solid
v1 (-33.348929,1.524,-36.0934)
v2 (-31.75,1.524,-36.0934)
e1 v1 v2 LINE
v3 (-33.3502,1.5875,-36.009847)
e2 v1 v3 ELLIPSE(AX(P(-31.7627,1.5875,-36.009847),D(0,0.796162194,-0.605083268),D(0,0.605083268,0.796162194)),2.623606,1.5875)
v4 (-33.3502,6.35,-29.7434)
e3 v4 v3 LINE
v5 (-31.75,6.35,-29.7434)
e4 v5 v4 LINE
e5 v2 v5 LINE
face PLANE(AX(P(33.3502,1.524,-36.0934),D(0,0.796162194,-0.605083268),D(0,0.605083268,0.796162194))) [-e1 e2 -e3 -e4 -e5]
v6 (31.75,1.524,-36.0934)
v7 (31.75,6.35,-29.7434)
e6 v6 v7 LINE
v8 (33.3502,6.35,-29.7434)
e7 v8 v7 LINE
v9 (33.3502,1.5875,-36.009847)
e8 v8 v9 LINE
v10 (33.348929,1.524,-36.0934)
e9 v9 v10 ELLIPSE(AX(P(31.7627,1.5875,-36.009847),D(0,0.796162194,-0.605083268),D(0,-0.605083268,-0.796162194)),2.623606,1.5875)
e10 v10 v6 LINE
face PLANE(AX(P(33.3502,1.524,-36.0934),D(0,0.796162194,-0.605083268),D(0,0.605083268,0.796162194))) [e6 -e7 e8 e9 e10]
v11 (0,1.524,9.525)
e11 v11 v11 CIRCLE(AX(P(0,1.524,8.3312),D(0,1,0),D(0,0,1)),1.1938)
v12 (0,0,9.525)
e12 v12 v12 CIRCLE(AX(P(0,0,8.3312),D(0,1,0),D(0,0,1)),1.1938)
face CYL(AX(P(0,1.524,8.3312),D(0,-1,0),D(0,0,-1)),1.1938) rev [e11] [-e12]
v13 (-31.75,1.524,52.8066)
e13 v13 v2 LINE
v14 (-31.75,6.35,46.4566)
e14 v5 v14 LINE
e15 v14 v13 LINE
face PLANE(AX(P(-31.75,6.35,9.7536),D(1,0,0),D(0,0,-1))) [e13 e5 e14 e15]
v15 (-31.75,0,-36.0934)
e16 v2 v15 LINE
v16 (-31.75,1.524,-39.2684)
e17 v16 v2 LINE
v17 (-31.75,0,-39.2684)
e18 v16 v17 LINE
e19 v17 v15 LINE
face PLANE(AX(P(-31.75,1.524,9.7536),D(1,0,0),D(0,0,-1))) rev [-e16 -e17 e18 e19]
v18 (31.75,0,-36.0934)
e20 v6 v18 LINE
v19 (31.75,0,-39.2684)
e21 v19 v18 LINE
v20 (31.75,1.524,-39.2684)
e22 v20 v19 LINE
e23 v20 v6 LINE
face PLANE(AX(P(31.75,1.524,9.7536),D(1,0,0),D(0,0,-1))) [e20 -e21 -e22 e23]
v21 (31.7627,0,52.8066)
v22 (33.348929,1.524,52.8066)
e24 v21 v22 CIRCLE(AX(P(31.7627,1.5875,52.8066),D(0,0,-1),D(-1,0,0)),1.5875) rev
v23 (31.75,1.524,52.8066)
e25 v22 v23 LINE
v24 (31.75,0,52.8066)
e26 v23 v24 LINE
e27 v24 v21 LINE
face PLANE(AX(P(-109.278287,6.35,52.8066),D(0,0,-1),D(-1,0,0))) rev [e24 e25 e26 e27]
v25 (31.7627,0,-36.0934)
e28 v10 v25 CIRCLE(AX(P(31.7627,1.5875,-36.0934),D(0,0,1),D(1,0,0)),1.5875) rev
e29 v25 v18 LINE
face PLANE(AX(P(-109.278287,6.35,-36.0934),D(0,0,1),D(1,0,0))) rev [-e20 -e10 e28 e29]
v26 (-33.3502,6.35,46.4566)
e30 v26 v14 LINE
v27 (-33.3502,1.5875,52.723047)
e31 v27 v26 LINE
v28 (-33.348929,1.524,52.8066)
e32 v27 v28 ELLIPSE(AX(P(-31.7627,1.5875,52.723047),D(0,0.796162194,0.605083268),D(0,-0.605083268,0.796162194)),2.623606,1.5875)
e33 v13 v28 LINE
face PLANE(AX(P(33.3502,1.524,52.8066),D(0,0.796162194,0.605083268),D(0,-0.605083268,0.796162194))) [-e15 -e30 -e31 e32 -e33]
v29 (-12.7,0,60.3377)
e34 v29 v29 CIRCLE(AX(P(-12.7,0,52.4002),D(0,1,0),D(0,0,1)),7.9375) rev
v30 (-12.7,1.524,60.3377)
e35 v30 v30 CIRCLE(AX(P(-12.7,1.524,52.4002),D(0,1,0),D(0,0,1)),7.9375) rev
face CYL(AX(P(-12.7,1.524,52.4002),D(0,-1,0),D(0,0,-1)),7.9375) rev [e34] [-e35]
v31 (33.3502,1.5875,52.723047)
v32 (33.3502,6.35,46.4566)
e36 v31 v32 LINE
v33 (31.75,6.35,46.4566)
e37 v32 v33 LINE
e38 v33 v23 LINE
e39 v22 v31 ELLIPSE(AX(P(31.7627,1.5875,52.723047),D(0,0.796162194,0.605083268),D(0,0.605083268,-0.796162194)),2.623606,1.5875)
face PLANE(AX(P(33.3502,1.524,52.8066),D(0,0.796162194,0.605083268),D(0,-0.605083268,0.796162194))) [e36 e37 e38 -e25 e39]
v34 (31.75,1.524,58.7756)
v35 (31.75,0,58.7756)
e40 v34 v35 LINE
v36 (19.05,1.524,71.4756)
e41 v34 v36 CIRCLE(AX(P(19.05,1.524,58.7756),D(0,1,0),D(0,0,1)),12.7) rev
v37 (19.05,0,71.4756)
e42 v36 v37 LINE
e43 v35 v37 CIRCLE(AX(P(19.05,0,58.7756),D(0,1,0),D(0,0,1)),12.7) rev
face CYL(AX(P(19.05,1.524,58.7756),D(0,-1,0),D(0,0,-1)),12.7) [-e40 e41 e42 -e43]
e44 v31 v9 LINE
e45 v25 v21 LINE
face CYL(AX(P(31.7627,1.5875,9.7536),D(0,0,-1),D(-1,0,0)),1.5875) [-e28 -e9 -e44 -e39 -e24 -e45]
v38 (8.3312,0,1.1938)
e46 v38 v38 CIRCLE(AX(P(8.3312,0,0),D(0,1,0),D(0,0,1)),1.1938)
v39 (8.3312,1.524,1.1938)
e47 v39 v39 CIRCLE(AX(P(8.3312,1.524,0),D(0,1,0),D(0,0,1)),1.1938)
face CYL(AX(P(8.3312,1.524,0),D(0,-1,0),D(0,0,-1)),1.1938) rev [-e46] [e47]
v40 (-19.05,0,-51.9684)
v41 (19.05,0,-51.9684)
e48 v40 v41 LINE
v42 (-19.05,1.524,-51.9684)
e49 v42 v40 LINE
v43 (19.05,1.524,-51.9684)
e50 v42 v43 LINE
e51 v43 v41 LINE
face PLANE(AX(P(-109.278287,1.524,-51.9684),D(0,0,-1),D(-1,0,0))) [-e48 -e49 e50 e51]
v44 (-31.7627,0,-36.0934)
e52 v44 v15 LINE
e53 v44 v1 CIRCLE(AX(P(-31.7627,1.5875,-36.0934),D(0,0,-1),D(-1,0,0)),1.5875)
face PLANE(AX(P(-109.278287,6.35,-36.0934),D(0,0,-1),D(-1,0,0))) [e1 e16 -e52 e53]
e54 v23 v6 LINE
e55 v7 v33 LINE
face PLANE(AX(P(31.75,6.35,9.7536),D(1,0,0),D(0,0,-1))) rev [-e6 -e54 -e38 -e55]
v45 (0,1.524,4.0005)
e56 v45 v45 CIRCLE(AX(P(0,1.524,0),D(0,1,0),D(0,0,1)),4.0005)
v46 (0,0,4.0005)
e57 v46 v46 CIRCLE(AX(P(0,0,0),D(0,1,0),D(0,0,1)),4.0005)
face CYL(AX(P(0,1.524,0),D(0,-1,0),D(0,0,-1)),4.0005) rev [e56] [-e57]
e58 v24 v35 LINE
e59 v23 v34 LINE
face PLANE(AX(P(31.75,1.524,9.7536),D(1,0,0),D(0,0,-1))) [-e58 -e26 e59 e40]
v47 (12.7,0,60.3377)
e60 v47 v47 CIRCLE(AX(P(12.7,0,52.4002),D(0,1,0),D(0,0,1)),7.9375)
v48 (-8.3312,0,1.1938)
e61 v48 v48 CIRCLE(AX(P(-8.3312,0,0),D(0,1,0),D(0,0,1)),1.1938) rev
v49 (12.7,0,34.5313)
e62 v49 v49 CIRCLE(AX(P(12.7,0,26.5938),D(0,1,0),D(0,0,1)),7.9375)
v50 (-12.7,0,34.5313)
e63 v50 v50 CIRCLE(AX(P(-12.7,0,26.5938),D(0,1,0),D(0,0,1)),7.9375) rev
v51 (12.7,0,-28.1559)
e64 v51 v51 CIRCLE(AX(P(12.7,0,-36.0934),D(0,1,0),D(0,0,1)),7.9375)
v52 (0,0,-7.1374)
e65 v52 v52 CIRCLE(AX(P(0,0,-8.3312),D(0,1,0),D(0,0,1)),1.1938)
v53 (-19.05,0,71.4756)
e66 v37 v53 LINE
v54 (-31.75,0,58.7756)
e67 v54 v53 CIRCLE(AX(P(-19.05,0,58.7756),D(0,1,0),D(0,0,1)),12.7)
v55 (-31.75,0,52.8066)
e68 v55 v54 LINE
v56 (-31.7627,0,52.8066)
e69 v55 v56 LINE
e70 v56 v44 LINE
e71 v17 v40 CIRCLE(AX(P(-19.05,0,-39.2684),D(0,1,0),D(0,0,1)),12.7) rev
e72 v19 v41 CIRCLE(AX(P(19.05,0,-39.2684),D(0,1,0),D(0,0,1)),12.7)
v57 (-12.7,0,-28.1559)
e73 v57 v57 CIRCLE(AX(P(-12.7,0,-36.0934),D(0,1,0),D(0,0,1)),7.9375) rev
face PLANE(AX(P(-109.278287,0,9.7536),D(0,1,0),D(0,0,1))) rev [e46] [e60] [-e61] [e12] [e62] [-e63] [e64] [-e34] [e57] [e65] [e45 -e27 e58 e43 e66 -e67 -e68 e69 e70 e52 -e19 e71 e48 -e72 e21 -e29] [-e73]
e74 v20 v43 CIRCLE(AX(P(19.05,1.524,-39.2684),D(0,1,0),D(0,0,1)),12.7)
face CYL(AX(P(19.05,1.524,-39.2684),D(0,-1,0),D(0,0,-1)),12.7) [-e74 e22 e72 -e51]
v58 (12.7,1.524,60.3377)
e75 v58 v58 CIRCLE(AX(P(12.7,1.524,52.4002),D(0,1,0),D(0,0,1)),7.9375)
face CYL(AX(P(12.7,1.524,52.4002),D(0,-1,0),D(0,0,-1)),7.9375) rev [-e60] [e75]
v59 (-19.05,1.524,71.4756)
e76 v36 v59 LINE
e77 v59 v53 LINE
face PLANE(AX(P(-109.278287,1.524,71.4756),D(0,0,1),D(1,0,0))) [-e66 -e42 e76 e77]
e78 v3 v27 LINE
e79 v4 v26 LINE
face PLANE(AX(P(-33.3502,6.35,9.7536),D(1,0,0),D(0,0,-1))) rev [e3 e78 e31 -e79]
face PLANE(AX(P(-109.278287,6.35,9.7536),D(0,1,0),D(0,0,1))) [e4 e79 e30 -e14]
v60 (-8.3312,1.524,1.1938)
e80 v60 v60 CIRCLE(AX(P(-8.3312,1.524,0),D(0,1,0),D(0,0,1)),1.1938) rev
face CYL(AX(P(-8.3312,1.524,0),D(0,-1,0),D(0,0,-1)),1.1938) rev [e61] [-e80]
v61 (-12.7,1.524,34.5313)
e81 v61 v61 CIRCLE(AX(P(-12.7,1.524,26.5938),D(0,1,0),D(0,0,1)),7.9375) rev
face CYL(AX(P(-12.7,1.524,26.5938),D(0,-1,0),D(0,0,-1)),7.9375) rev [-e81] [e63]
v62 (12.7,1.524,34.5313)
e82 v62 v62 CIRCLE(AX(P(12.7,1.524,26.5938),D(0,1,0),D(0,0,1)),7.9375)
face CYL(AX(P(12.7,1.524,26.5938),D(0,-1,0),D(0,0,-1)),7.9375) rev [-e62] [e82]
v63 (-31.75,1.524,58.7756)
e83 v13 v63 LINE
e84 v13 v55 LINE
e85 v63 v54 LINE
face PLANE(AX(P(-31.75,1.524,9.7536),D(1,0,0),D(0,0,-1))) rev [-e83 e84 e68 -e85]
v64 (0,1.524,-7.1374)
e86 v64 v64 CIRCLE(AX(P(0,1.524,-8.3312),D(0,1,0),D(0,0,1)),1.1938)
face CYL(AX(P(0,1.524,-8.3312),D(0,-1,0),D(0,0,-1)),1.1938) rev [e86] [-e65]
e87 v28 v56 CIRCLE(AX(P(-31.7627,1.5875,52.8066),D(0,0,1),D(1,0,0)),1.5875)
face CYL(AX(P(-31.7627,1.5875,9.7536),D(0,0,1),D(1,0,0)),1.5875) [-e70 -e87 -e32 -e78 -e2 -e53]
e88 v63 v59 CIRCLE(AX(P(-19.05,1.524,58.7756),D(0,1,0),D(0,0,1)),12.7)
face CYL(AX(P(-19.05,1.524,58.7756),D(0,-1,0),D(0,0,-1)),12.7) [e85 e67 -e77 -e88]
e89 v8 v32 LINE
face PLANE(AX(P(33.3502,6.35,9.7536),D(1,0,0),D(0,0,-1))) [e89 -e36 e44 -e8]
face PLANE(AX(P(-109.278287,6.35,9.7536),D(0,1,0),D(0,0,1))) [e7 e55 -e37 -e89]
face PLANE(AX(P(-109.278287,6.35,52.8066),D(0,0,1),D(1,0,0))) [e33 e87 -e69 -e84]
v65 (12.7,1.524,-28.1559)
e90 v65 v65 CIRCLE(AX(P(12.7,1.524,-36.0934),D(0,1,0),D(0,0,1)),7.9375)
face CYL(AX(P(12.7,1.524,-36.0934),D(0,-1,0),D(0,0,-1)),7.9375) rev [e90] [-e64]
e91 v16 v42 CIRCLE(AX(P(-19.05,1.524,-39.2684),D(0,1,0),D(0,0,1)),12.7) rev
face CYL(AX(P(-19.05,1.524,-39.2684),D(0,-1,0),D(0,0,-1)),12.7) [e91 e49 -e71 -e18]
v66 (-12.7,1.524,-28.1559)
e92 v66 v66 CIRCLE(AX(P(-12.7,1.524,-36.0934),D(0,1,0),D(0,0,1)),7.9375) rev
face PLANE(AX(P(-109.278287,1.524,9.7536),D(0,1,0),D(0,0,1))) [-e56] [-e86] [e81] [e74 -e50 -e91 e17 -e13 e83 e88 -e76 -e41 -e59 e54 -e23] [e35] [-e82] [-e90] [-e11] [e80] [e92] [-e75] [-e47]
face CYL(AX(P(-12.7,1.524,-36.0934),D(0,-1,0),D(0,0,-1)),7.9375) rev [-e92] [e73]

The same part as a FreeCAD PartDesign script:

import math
import FreeCAD as App
import Part
import Sketcher
Q = App.Units.Quantity


def edges_at(feature, points):
    """Names of the edges that pass closest to the given points."""
    edges = feature.Shape.Edges
    near = lambda p: min(range(len(edges)), key=lambda i: edges[i].distToShape(Part.Vertex(*p))[0])
    return sorted({f"Edge{near(p) + 1}" for p in points})


def add_polygon(sketch, points):
    """Adds a closed chain of lines whose ends are joined by coincident constraints."""
    first, n = sketch.GeometryCount, len(points)
    for a, b in zip(points, points[1:] + points[:1]):
        sketch.addGeometry(Part.LineSegment(App.Vector(*a, 0), App.Vector(*b, 0)), False)
    for i in range(n):
        sketch.addConstraint(Sketcher.Constraint("Coincident", first + i, 2, first + (i + 1) % n, 1))

doc = App.newDocument("Part")
params = doc.addObject("Spreadsheet::Sheet", "Params")
for row, (alias, value) in enumerate([
    ("sketch1_radius", "0.5 in"),
    ("sketch1_diameter", "0.625 in"),
    ("sketch1_diameter2", "0.094 in"),
    ("sketch1_diameter3", "0.315 in"),
    ("sketch1_width", "1.5 in"),
    ("pad1_length", "0.06 in"),
    ("sketch2_height", "3.5 in"),
    ("sketch2_width", "0.063 in"),
    ("pad2_length", "0.25 in"),
    ("sketch3_width", "0.19 in"),
    ("sketch3_height", "0.25 in"),
    ("fillet_radius", "0.0625 in"),
], start=1):
    params.set(f"A{row}", alias)
    params.set(f"B{row}", "=" + value)
    params.setAlias(f"B{row}", alias)

body = doc.addObject("PartDesign::Body", "Body")

# Sketch on XZ plane
sketch1 = body.newObject("Sketcher::SketchObject", "Sketch")
sketch1.AttachmentSupport = (doc.getObject("XZ_Plane"), [""])
sketch1.MapMode = "FlatFace"
sketch1.addGeometry(Part.ArcOfCircle(Part.Circle(App.Vector(-19.1, 58.8, 0), App.Vector(0, 0, 1), 12.7), math.radians(90), math.radians(180)), False)
sketch1.addGeometry(Part.LineSegment(App.Vector(-19.1, 71.5, 0), App.Vector(19.1, 71.5, 0)), False)
sketch1.addGeometry(Part.ArcOfCircle(Part.Circle(App.Vector(19.1, 58.8, 0), App.Vector(0, 0, 1), 12.7), math.radians(0), math.radians(90)), False)
sketch1.addGeometry(Part.LineSegment(App.Vector(31.8, 58.8, 0), App.Vector(31.8, -39.3, 0)), False)
sketch1.addGeometry(Part.ArcOfCircle(Part.Circle(App.Vector(19.1, -39.3, 0), App.Vector(0, 0, 1), 12.7), math.radians(-90), math.radians(0)), False)
sketch1.addGeometry(Part.LineSegment(App.Vector(19.1, -52, 0), App.Vector(-19.1, -52, 0)), False)
sketch1.addGeometry(Part.ArcOfCircle(Part.Circle(App.Vector(-19.1, -39.3, 0), App.Vector(0, 0, 1), 12.7), math.radians(180), math.radians(270)), False)
sketch1.addGeometry(Part.LineSegment(App.Vector(-31.8, -39.3, 0), App.Vector(-31.8, 58.8, 0)), False)
sketch1.addGeometry(Part.Circle(App.Vector(-12.7, 52.4, 0), App.Vector(0, 0, 1), 7.9), False)
sketch1.addGeometry(Part.Circle(App.Vector(-12.7, 26.6, 0), App.Vector(0, 0, 1), 7.9), False)
sketch1.addGeometry(Part.Circle(App.Vector(12.7, 52.4, 0), App.Vector(0, 0, 1), 7.9), False)
sketch1.addGeometry(Part.Circle(App.Vector(0, 8.3, 0), App.Vector(0, 0, 1), 1.2), False)
sketch1.addGeometry(Part.Circle(App.Vector(12.7, 26.6, 0), App.Vector(0, 0, 1), 7.9), False)
sketch1.addGeometry(Part.Circle(App.Vector(-8.3, 0, 0), App.Vector(0, 0, 1), 1.2), False)
sketch1.addGeometry(Part.Circle(App.Vector(-12.7, -36.1, 0), App.Vector(0, 0, 1), 7.9), False)
sketch1.addGeometry(Part.Circle(App.Vector(0, 0, 0), App.Vector(0, 0, 1), 4), False)
sketch1.addGeometry(Part.Circle(App.Vector(8.3, 0, 0), App.Vector(0, 0, 1), 1.2), False)
sketch1.addGeometry(Part.Circle(App.Vector(0, -8.3, 0), App.Vector(0, 0, 1), 1.2), False)
sketch1.addGeometry(Part.Circle(App.Vector(12.7, -36.1, 0), App.Vector(0, 0, 1), 7.9), False)
sketch1.addConstraint(Sketcher.Constraint("Tangent", 0, 1, 1, 1))
sketch1.addConstraint(Sketcher.Constraint("Tangent", 1, 2, 2, 2))
sketch1.addConstraint(Sketcher.Constraint("Tangent", 2, 1, 3, 1))
sketch1.addConstraint(Sketcher.Constraint("Tangent", 3, 2, 4, 2))
sketch1.addConstraint(Sketcher.Constraint("Tangent", 4, 1, 5, 1))
sketch1.addConstraint(Sketcher.Constraint("Tangent", 5, 2, 6, 2))
sketch1.addConstraint(Sketcher.Constraint("Tangent", 6, 1, 7, 1))
sketch1.addConstraint(Sketcher.Constraint("Tangent", 7, 2, 0, 2))
sketch1.addConstraint(Sketcher.Constraint("Horizontal", 1))
sketch1.addConstraint(Sketcher.Constraint("Vertical", 3))
sketch1.addConstraint(Sketcher.Constraint("Horizontal", 5))
sketch1.addConstraint(Sketcher.Constraint("Vertical", 7))
sketch1.addConstraint(Sketcher.Constraint("Coincident", 15, 3, -1, 1))
sketch1.addConstraint(Sketcher.Constraint("Equal", 0, 2))
sketch1.addConstraint(Sketcher.Constraint("Equal", 2, 4))
sketch1.addConstraint(Sketcher.Constraint("Equal", 4, 6))
sketch1.addConstraint(Sketcher.Constraint("Equal", 8, 9))
sketch1.addConstraint(Sketcher.Constraint("Equal", 9, 10))
sketch1.addConstraint(Sketcher.Constraint("Equal", 10, 12))
sketch1.addConstraint(Sketcher.Constraint("Equal", 11, 13))
sketch1.addConstraint(Sketcher.Constraint("Equal", 12, 14))
sketch1.addConstraint(Sketcher.Constraint("Equal", 13, 16))
sketch1.addConstraint(Sketcher.Constraint("Equal", 16, 17))
sketch1.addConstraint(Sketcher.Constraint("Equal", 14, 18))
sketch1.addConstraint(Sketcher.Constraint("Symmetric", 13, 3, 16, 3, -1, 1))
sketch1.addConstraint(Sketcher.Constraint("Symmetric", 11, 3, 17, 3, -1, 1))
sketch1.addConstraint(Sketcher.Constraint("Symmetric", 8, 3, 10, 3, -2))
sketch1.addConstraint(Sketcher.Constraint("Symmetric", 9, 3, 12, 3, -2))
sketch1.addConstraint(Sketcher.Constraint("Symmetric", 14, 3, 18, 3, -2))
sketch1.addConstraint(Sketcher.Constraint("PointOnObject", 11, 3, -2))
sketch1.addConstraint(Sketcher.Constraint("PointOnObject", 13, 3, -1))
sketch1.addConstraint(Sketcher.Constraint("Vertical", 8, 3, 9, 3))
sketch1.addConstraint(Sketcher.Constraint("Vertical", 9, 3, 14, 3))
sketch1.addConstraint(Sketcher.Constraint("Radius", 0, Q("0.5 in")))
sketch1.addConstraint(Sketcher.Constraint("Diameter", 8, Q("0.625 in")))
sketch1.addConstraint(Sketcher.Constraint("Diameter", 11, Q("0.094 in")))
sketch1.addConstraint(Sketcher.Constraint("Diameter", 15, Q("0.315 in")))
sketch1.addConstraint(Sketcher.Constraint("DistanceX", 1, 1, 1, 2, Q("1.5 in")))
sketch1.addConstraint(Sketcher.Constraint("DistanceX", 8, 3, 10, 3, Q("1 in")))
sketch1.addConstraint(Sketcher.Constraint("DistanceY", 3, 2, 3, 1, Q("3.86 in")))
sketch1.addConstraint(Sketcher.Constraint("DistanceX", 0, 3, -1, 1, Q("0.75 in")))
sketch1.addConstraint(Sketcher.Constraint("DistanceY", -1, 1, 0, 3, Q("2.314 in")))
sketch1.addConstraint(Sketcher.Constraint("DistanceY", -1, 1, 8, 3, Q("2.063 in")))
sketch1.addConstraint(Sketcher.Constraint("DistanceY", -1, 1, 9, 3, Q("1.047 in")))
sketch1.addConstraint(Sketcher.Constraint("DistanceY", -1, 1, 11, 3, Q("0.328 in")))
sketch1.addConstraint(Sketcher.Constraint("DistanceX", 13, 3, -1, 1, Q("0.328 in")))
sketch1.addConstraint(Sketcher.Constraint("DistanceY", 14, 3, -1, 1, Q("1.421 in")))
sketch1.setExpression("Constraints[33]", "Params.sketch1_radius")
sketch1.setExpression("Constraints[34]", "Params.sketch1_diameter")
sketch1.setExpression("Constraints[35]", "Params.sketch1_diameter2")
sketch1.setExpression("Constraints[36]", "Params.sketch1_diameter3")
sketch1.setExpression("Constraints[37]", "Params.sketch1_width")
pad1 = body.newObject("PartDesign::Pad", "Pad")
pad1.Profile = sketch1
pad1.setExpression("Length", "Params.pad1_length")
pad1.Reversed = True

# Sketch on XZ plane
sketch2 = body.newObject("Sketcher::SketchObject", "Sketch001")
sketch2.AttachmentSupport = (doc.getObject("XZ_Plane"), [""])
sketch2.MapMode = "FlatFace"
add_polygon(sketch2, [(31.8, -36.1), (31.8, 52.8), (33.4, 52.8), (33.4, -36.1)])  # lines 0-3
add_polygon(sketch2, [(-33.4, 52.8), (-31.8, 52.8), (-31.8, -36.1), (-33.4, -36.1)])  # lines 4-7
sketch2.addConstraint(Sketcher.Constraint("Vertical", 0))
sketch2.addConstraint(Sketcher.Constraint("Horizontal", 1))
sketch2.addConstraint(Sketcher.Constraint("Vertical", 2))
sketch2.addConstraint(Sketcher.Constraint("Horizontal", 3))
sketch2.addConstraint(Sketcher.Constraint("Horizontal", 4))
sketch2.addConstraint(Sketcher.Constraint("Vertical", 5))
sketch2.addConstraint(Sketcher.Constraint("Horizontal", 6))
sketch2.addConstraint(Sketcher.Constraint("Vertical", 7))
sketch2.addConstraint(Sketcher.Constraint("Symmetric", 0, 2, 4, 2, -2))
sketch2.addConstraint(Sketcher.Constraint("Symmetric", 2, 2, 6, 2, -2))
sketch2.addConstraint(Sketcher.Constraint("DistanceY", 0, 1, 0, 2, Q("3.5 in")))
sketch2.addConstraint(Sketcher.Constraint("DistanceX", 4, 2, 0, 2, Q("2.5 in")))
sketch2.addConstraint(Sketcher.Constraint("DistanceX", 1, 1, 1, 2, Q("0.063 in")))
sketch2.addConstraint(Sketcher.Constraint("DistanceY", -1, 1, 0, 2, Q("2.079 in")))
sketch2.setExpression("Constraints[18]", "Params.sketch2_height")
sketch2.setExpression("Constraints[20]", "Params.sketch2_width")
pad2 = body.newObject("PartDesign::Pad", "Pad001")
pad2.Profile = sketch2
pad2.setExpression("Length", "Params.pad2_length")
pad2.Reversed = True

# Sketch on YZ plane
sketch3 = body.newObject("Sketcher::SketchObject", "Sketch002")
sketch3.AttachmentSupport = (doc.getObject("YZ_Plane"), [""])
sketch3.MapMode = "FlatFace"
add_polygon(sketch3, [(1.5, 52.8), (6.3, 46.5), (6.3, 52.8)])  # lines 0-2
add_polygon(sketch3, [(1.5, -36.1), (6.3, -36.1), (6.3, -29.7)])  # lines 3-5
sketch3.addConstraint(Sketcher.Constraint("Vertical", 1))
sketch3.addConstraint(Sketcher.Constraint("Horizontal", 2))
sketch3.addConstraint(Sketcher.Constraint("Horizontal", 3))
sketch3.addConstraint(Sketcher.Constraint("Vertical", 4))
sketch3.addConstraint(Sketcher.Constraint("Vertical", 1, 2, 3, 2))
sketch3.addConstraint(Sketcher.Constraint("Vertical", 2, 2, 5, 2))
sketch3.addConstraint(Sketcher.Constraint("Equal", 1, 4))
sketch3.addConstraint(Sketcher.Constraint("DistanceY", 4, 2, 0, 2, Q("3 in")))
sketch3.addConstraint(Sketcher.Constraint("DistanceX", 2, 2, 2, 1, Q("0.19 in")))
sketch3.addConstraint(Sketcher.Constraint("DistanceY", 1, 1, 1, 2, Q("0.25 in")))
sketch3.addConstraint(Sketcher.Constraint("DistanceX", -1, 1, 0, 2, Q("0.25 in")))
sketch3.addConstraint(Sketcher.Constraint("DistanceY", -1, 1, 0, 2, Q("1.829 in")))
sketch3.setExpression("Constraints[14]", "Params.sketch3_width")
sketch3.setExpression("Constraints[15]", "Params.sketch3_height")
pocket1 = body.newObject("PartDesign::Pocket", "Pocket")
pocket1.Profile = sketch3
pocket1.Type = "ThroughAll"
pocket1.Midplane = True
doc.recompute()

fillet = body.newObject("PartDesign::Fillet", "Fillet")
fillet.Base = (pocket1, edges_at(pocket1, [(33.35, 0, 8.357), (-33.35, 0, 8.357)]))
fillet.setExpression("Radius", "Params.fillet_radius")

doc.recompute()
